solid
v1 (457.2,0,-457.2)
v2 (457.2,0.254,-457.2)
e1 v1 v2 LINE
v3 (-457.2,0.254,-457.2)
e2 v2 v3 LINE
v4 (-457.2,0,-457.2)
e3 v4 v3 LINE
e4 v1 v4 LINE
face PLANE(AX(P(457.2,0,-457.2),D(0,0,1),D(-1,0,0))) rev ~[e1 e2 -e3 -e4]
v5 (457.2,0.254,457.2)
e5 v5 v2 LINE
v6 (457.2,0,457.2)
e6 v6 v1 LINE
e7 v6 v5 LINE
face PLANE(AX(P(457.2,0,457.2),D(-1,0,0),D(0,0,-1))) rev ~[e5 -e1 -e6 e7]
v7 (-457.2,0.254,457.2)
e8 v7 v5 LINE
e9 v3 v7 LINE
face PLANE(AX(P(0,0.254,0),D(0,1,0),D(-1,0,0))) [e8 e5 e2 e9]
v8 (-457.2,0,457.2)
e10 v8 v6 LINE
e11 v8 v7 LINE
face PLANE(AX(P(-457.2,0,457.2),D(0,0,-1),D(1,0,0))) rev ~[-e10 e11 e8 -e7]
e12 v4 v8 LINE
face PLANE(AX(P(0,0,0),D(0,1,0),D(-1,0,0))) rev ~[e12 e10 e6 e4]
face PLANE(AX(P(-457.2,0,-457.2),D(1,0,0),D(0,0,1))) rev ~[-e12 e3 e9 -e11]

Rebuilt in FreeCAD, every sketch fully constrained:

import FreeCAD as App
import Part
import Sketcher
from FreeCAD import Vector
Q = App.Units.Quantity


def add_polygon(sketch, points):
    """Adds a closed chain of lines whose ends are joined by coincident constraints."""
    first, n = sketch.GeometryCount, len(points)
    for a, b in zip(points, points[1:] + points[:1]):
        sketch.addGeometry(Part.LineSegment(App.Vector(*a, 0), App.Vector(*b, 0)), False)
    for i in range(n):
        sketch.addConstraint(Sketcher.Constraint("Coincident", first + i, 2, first + (i + 1) % n, 1))

doc = App.newDocument("Part")
body = doc.addObject("PartDesign::Body", "Body")

# Sketch on XZ plane
sketch1 = body.newObject("Sketcher::SketchObject", "Sketch")
sketch1.AttachmentSupport = (doc.getObject("XZ_Plane"), [""])
sketch1.MapMode = "FlatFace"
add_polygon(sketch1, [(-457.2, -457.2), (-457.2, 457.2), (457.2, 457.2), (457.2, -457.2)])  # lines 0-3
sketch1.addConstraint([
    Sketcher.Constraint("Vertical", 0),
    Sketcher.Constraint("Horizontal", 1),
    Sketcher.Constraint("Vertical", 2),
    Sketcher.Constraint("Horizontal", 3),
    Sketcher.Constraint("Symmetric", 0, 2, 2, 2, -1, 1),
    Sketcher.Constraint("Equal", 3, 0),
    Sketcher.Constraint("DistanceX", 1, 1, 1, 2, Q("36 in")),
])
pad1 = body.newObject("PartDesign::Pad", "Pad")
pad1.Profile = sketch1
pad1.Length = Q("0.01 in")
pad1.Reversed = True

doc.recompute()
